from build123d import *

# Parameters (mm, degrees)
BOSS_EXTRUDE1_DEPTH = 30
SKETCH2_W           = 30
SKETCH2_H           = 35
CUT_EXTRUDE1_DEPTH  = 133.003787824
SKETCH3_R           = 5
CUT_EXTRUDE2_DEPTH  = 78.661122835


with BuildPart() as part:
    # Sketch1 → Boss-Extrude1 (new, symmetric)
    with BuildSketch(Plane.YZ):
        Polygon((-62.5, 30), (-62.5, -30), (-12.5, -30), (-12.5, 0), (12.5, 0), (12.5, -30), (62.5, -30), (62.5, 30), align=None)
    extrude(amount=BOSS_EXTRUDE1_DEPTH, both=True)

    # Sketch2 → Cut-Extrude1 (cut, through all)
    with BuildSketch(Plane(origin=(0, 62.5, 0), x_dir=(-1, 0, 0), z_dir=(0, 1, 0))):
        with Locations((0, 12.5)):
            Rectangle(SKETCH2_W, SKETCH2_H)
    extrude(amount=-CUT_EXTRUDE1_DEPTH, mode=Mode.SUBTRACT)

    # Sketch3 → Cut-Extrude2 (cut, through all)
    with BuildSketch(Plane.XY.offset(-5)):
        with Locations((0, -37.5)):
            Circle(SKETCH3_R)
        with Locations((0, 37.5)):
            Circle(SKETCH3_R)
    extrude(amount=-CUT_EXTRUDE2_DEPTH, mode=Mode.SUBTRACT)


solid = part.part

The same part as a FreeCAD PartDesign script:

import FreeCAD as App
import Part
import Sketcher

V = App.Vector


def add_polygon(sketch, points):
    """Adds a closed chain of lines whose ends are joined by coincident constraints."""
    first, n = sketch.GeometryCount, len(points)
    for a, b in zip(points, points[1:] + points[:1]):
        sketch.addGeometry(Part.LineSegment(App.Vector(*a, 0), App.Vector(*b, 0)), False)
    for i in range(n):
        sketch.addConstraint(Sketcher.Constraint("Coincident", first + i, 2, first + (i + 1) % n, 1))

doc = App.newDocument("Part")
body = doc.addObject("PartDesign::Body", "Body")

# Sketch on YZ plane
sketch1 = body.newObject("Sketcher::SketchObject", "Sketch")
sketch1.AttachmentSupport = (doc.getObject("YZ_Plane"), [""])
sketch1.MapMode = "FlatFace"
add_polygon(sketch1, [(-62.5, 30), (-62.5, -30), (-12.5, -30), (-12.5, 0), (12.5, 0), (12.5, -30), (62.5, -30), (62.5, 30)])  # lines 0-7
sketch1.addConstraint(Sketcher.Constraint("Vertical", 0))
sketch1.addConstraint(Sketcher.Constraint("Horizontal", 1))
sketch1.addConstraint(Sketcher.Constraint("Vertical", 2))
sketch1.addConstraint(Sketcher.Constraint("Horizontal", 3))
sketch1.addConstraint(Sketcher.Constraint("Vertical", 4))
sketch1.addConstraint(Sketcher.Constraint("Horizontal", 5))
sketch1.addConstraint(Sketcher.Constraint("Vertical", 6))
sketch1.addConstraint(Sketcher.Constraint("Horizontal", 7))
sketch1.addConstraint(Sketcher.Constraint("Symmetric", 2, 2, 3, 2, -1, 1))
sketch1.addConstraint(Sketcher.Constraint("Symmetric", 0, 2, 6, 2, -1, 1))
sketch1.addConstraint(Sketcher.Constraint("Horizontal", 1, 2, 4, 2))
sketch1.addConstraint(Sketcher.Constraint("DistanceX", 1, 1, 1, 2, 50.0))
sketch1.addConstraint(Sketcher.Constraint("DistanceX", 3, 1, 3, 2, 25.0))
sketch1.addConstraint(Sketcher.Constraint("DistanceY", 0, 2, 0, 1, 60.0))
pad1 = body.newObject("PartDesign::Pad", "Pad")
pad1.Profile = sketch1
pad1.Length = 60
pad1.Midplane = True

# Sketch on XZ plane
sketch2 = body.newObject("Sketcher::SketchObject", "Sketch001")
sketch2.AttachmentSupport = (doc.getObject("XZ_Plane"), [""])
sketch2.MapMode = "FlatFace"
sketch2.AttachmentOffset = App.Placement(V(0, 0, -62.5), App.Rotation())
add_polygon(sketch2, [(15, 30), (15, -5), (-15, -5), (-15, 30)])  # lines 0-3
sketch2.addConstraint(Sketcher.Constraint("Vertical", 0))
sketch2.addConstraint(Sketcher.Constraint("Horizontal", 1))
sketch2.addConstraint(Sketcher.Constraint("Vertical", 2))
sketch2.addConstraint(Sketcher.Constraint("Horizontal", 3))
sketch2.addConstraint(Sketcher.Constraint("DistanceX", 1, 2, 1, 1, 30.0))
sketch2.addConstraint(Sketcher.Constraint("DistanceY", 0, 2, 0, 1, 35.0))
sketch2.addConstraint(Sketcher.Constraint("DistanceX", -1, 1, 0, 2, 15.0))
sketch2.addConstraint(Sketcher.Constraint("DistanceY", 0, 2, -1, 1, 5.0))
pocket1 = body.newObject("PartDesign::Pocket", "Pocket")
pocket1.Profile = sketch2
pocket1.Type = "ThroughAll"
pocket1.Reversed = True

# Sketch on XY plane
sketch3 = body.newObject("Sketcher::SketchObject", "Sketch002")
sketch3.AttachmentSupport = (doc.getObject("XY_Plane"), [""])
sketch3.MapMode = "FlatFace"
sketch3.AttachmentOffset = App.Placement(V(0, 0, -5), App.Rotation())
sketch3.addGeometry(Part.Circle(V(0, -37.5, 0), V(0, 0, 1), 5), False)
sketch3.addGeometry(Part.Circle(V(0, 37.5, 0), V(0, 0, 1), 5), False)
sketch3.addConstraint(Sketcher.Constraint("Equal", 0, 1))
sketch3.addConstraint(Sketcher.Constraint("Symmetric", 0, 3, 1, 3, -1, 1))
sketch3.addConstraint(Sketcher.Constraint("PointOnObject", 0, 3, -2))
sketch3.addConstraint(Sketcher.Constraint("Diameter", 0, 10.0))
sketch3.addConstraint(Sketcher.Constraint("DistanceY", 0, 3, 1, 3, 75.0))
pocket2 = body.newObject("PartDesign::Pocket", "Pocket001")
pocket2.Profile = sketch3
pocket2.Type = "ThroughAll"

doc.recompute()
